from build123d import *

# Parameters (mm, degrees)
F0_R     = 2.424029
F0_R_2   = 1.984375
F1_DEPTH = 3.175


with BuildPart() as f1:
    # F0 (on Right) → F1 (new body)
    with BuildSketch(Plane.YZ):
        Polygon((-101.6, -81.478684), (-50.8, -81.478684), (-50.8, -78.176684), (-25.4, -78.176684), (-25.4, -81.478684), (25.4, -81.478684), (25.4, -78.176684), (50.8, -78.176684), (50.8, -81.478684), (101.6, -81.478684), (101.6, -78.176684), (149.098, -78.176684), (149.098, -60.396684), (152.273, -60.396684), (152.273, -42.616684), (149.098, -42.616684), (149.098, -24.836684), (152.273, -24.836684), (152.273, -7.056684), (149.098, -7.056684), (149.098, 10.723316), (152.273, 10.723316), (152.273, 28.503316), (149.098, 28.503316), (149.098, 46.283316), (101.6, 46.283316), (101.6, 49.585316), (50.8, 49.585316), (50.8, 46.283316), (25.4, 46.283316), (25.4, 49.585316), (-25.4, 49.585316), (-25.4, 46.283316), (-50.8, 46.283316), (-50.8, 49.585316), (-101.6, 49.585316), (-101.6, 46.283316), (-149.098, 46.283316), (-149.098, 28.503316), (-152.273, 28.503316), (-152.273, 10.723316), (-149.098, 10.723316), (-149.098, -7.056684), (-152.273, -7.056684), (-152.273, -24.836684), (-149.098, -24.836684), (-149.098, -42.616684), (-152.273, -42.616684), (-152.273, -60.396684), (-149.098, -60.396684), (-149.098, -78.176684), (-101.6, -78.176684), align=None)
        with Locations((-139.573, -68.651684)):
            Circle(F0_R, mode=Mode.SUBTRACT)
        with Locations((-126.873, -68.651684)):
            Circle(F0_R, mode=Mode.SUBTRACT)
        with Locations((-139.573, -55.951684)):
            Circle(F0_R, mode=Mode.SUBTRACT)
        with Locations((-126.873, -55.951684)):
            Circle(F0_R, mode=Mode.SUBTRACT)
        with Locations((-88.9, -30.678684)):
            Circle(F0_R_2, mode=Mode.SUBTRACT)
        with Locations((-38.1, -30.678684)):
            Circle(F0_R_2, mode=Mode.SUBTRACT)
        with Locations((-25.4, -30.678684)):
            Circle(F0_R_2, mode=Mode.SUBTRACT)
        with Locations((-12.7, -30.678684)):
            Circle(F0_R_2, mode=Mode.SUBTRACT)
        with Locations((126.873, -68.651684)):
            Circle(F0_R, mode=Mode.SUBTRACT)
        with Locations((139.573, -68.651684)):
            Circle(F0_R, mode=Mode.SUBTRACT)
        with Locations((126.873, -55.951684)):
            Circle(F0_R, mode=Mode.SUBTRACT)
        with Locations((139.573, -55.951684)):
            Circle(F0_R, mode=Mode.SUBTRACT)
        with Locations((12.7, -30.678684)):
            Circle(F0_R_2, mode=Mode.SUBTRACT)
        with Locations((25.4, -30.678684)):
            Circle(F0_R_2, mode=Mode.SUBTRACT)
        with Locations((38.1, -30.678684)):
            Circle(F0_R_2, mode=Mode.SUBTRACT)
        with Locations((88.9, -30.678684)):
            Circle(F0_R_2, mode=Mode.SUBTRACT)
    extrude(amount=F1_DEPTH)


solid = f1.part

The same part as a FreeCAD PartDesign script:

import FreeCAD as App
import Part
import Sketcher

V = App.Vector
Q = App.Units.Quantity

doc = App.newDocument("Part")
body = doc.addObject("PartDesign::Body", "Body")

# Sketch on YZ plane
sketch1 = body.newObject("Sketcher::SketchObject", "Sketch")
sketch1.AttachmentSupport = (doc.getObject("YZ_Plane"), [""])
sketch1.MapMode = "FlatFace"
sketch1.addGeometry([
    Part.LineSegment(V(-101.6, -81.5, 0), V(-50.8, -81.5, 0)),  # 0
    Part.LineSegment(V(-50.8, -81.5, 0), V(-50.8, -78.2, 0)),  # 1
    Part.LineSegment(V(-50.8, -78.2, 0), V(-25.4, -78.2, 0)),  # 2
    Part.LineSegment(V(-25.4, -78.2, 0), V(-25.4, -81.5, 0)),  # 3
    Part.LineSegment(V(-25.4, -81.5, 0), V(25.4, -81.5, 0)),  # 4
    Part.LineSegment(V(25.4, -81.5, 0), V(25.4, -78.2, 0)),  # 5
    Part.LineSegment(V(25.4, -78.2, 0), V(50.8, -78.2, 0)),  # 6
    Part.LineSegment(V(50.8, -78.2, 0), V(50.8, -81.5, 0)),  # 7
    Part.LineSegment(V(50.8, -81.5, 0), V(101.6, -81.5, 0)),  # 8
    Part.LineSegment(V(101.6, -81.5, 0), V(101.6, -78.2, 0)),  # 9
    Part.LineSegment(V(101.6, -78.2, 0), V(149.1, -78.2, 0)),  # 10
    Part.LineSegment(V(149.1, -78.2, 0), V(149.1, -60.4, 0)),  # 11
    Part.LineSegment(V(149.1, -60.4, 0), V(152.3, -60.4, 0)),  # 12
    Part.LineSegment(V(152.3, -60.4, 0), V(152.3, -42.6, 0)),  # 13
    Part.LineSegment(V(152.3, -42.6, 0), V(149.1, -42.6, 0)),  # 14
    Part.LineSegment(V(149.1, -42.6, 0), V(149.1, -24.8, 0)),  # 15
    Part.LineSegment(V(149.1, -24.8, 0), V(152.3, -24.8, 0)),  # 16
    Part.LineSegment(V(152.3, -24.8, 0), V(152.3, -7.1, 0)),  # 17
    Part.LineSegment(V(152.3, -7.1, 0), V(149.1, -7.1, 0)),  # 18
    Part.LineSegment(V(149.1, -7.1, 0), V(149.1, 10.7, 0)),  # 19
    Part.LineSegment(V(149.1, 10.7, 0), V(152.3, 10.7, 0)),  # 20
    Part.LineSegment(V(152.3, 10.7, 0), V(152.3, 28.5, 0)),  # 21
    Part.LineSegment(V(152.3, 28.5, 0), V(149.1, 28.5, 0)),  # 22
    Part.LineSegment(V(149.1, 28.5, 0), V(149.1, 46.3, 0)),  # 23
    Part.LineSegment(V(149.1, 46.3, 0), V(101.6, 46.3, 0)),  # 24
    Part.LineSegment(V(101.6, 46.3, 0), V(101.6, 49.6, 0)),  # 25
    Part.LineSegment(V(101.6, 49.6, 0), V(50.8, 49.6, 0)),  # 26
    Part.LineSegment(V(50.8, 49.6, 0), V(50.8, 46.3, 0)),  # 27
    Part.LineSegment(V(50.8, 46.3, 0), V(25.4, 46.3, 0)),  # 28
    Part.LineSegment(V(25.4, 46.3, 0), V(25.4, 49.6, 0)),  # 29
    Part.LineSegment(V(25.4, 49.6, 0), V(-25.4, 49.6, 0)),  # 30
    Part.LineSegment(V(-25.4, 49.6, 0), V(-25.4, 46.3, 0)),  # 31
    Part.LineSegment(V(-25.4, 46.3, 0), V(-50.8, 46.3, 0)),  # 32
    Part.LineSegment(V(-50.8, 46.3, 0), V(-50.8, 49.6, 0)),  # 33
    Part.LineSegment(V(-50.8, 49.6, 0), V(-101.6, 49.6, 0)),  # 34
    Part.LineSegment(V(-101.6, 49.6, 0), V(-101.6, 46.3, 0)),  # 35
    Part.LineSegment(V(-101.6, 46.3, 0), V(-149.1, 46.3, 0)),  # 36
    Part.LineSegment(V(-149.1, 46.3, 0), V(-149.1, 28.5, 0)),  # 37
    Part.LineSegment(V(-149.1, 28.5, 0), V(-152.3, 28.5, 0)),  # 38
    Part.LineSegment(V(-152.3, 28.5, 0), V(-152.3, 10.7, 0)),  # 39
    Part.LineSegment(V(-152.3, 10.7, 0), V(-149.1, 10.7, 0)),  # 40
    Part.LineSegment(V(-149.1, 10.7, 0), V(-149.1, -7.1, 0)),  # 41
    Part.LineSegment(V(-149.1, -7.1, 0), V(-152.3, -7.1, 0)),  # 42
    Part.LineSegment(V(-152.3, -7.1, 0), V(-152.3, -24.8, 0)),  # 43
    Part.LineSegment(V(-152.3, -24.8, 0), V(-149.1, -24.8, 0)),  # 44
    Part.LineSegment(V(-149.1, -24.8, 0), V(-149.1, -42.6, 0)),  # 45
    Part.LineSegment(V(-149.1, -42.6, 0), V(-152.3, -42.6, 0)),  # 46
    Part.LineSegment(V(-152.3, -42.6, 0), V(-152.3, -60.4, 0)),  # 47
    Part.LineSegment(V(-152.3, -60.4, 0), V(-149.1, -60.4, 0)),  # 48
    Part.LineSegment(V(-149.1, -60.4, 0), V(-149.1, -78.2, 0)),  # 49
    Part.LineSegment(V(-149.1, -78.2, 0), V(-101.6, -78.2, 0)),  # 50
    Part.LineSegment(V(-101.6, -78.2, 0), V(-101.6, -81.5, 0)),  # 51
    Part.Circle(V(-139.6, -68.7, 0), V(0, 0, 1), 2.4),  # 52
    Part.Circle(V(-126.9, -68.7, 0), V(0, 0, 1), 2.4),  # 53
    Part.Circle(V(-139.6, -56, 0), V(0, 0, 1), 2.4),  # 54
    Part.Circle(V(-126.9, -56, 0), V(0, 0, 1), 2.4),  # 55
    Part.Circle(V(126.9, -68.7, 0), V(0, 0, 1), 2.4),  # 56
    Part.Circle(V(139.6, -68.7, 0), V(0, 0, 1), 2.4),  # 57
    Part.Circle(V(126.9, -56, 0), V(0, 0, 1), 2.4),  # 58
    Part.Circle(V(139.6, -56, 0), V(0, 0, 1), 2.4),  # 59
    Part.Circle(V(-88.9, -30.7, 0), V(0, 0, 1), 2),  # 60
    Part.Circle(V(-38.1, -30.7, 0), V(0, 0, 1), 2),  # 61
    Part.Circle(V(-25.4, -30.7, 0), V(0, 0, 1), 2),  # 62
    Part.Circle(V(-12.7, -30.7, 0), V(0, 0, 1), 2),  # 63
    Part.Circle(V(12.7, -30.7, 0), V(0, 0, 1), 2),  # 64
    Part.Circle(V(25.4, -30.7, 0), V(0, 0, 1), 2),  # 65
    Part.Circle(V(38.1, -30.7, 0), V(0, 0, 1), 2),  # 66
    Part.Circle(V(88.9, -30.7, 0), V(0, 0, 1), 2),  # 67
], False)
sketch1.addConstraint([
    Sketcher.Constraint("Coincident", 0, 2, 1, 1),
    Sketcher.Constraint("Coincident", 1, 2, 2, 1),
    Sketcher.Constraint("Coincident", 2, 2, 3, 1),
    Sketcher.Constraint("Coincident", 3, 2, 4, 1),
    Sketcher.Constraint("Coincident", 4, 2, 5, 1),
    Sketcher.Constraint("Coincident", 5, 2, 6, 1),
    Sketcher.Constraint("Coincident", 6, 2, 7, 1),
    Sketcher.Constraint("Coincident", 7, 2, 8, 1),
    Sketcher.Constraint("Coincident", 8, 2, 9, 1),
    Sketcher.Constraint("Coincident", 9, 2, 10, 1),
    Sketcher.Constraint("Coincident", 10, 2, 11, 1),
    Sketcher.Constraint("Coincident", 11, 2, 12, 1),
    Sketcher.Constraint("Coincident", 12, 2, 13, 1),
    Sketcher.Constraint("Coincident", 13, 2, 14, 1),
    Sketcher.Constraint("Coincident", 14, 2, 15, 1),
    Sketcher.Constraint("Coincident", 15, 2, 16, 1),
    Sketcher.Constraint("Coincident", 16, 2, 17, 1),
    Sketcher.Constraint("Coincident", 17, 2, 18, 1),
    Sketcher.Constraint("Coincident", 18, 2, 19, 1),
    Sketcher.Constraint("Coincident", 19, 2, 20, 1),
    Sketcher.Constraint("Coincident", 20, 2, 21, 1),
    Sketcher.Constraint("Coincident", 21, 2, 22, 1),
    Sketcher.Constraint("Coincident", 22, 2, 23, 1),
    Sketcher.Constraint("Coincident", 23, 2, 24, 1),
    Sketcher.Constraint("Coincident", 24, 2, 25, 1),
    Sketcher.Constraint("Coincident", 25, 2, 26, 1),
    Sketcher.Constraint("Coincident", 26, 2, 27, 1),
    Sketcher.Constraint("Coincident", 27, 2, 28, 1),
    Sketcher.Constraint("Coincident", 28, 2, 29, 1),
    Sketcher.Constraint("Coincident", 29, 2, 30, 1),
    Sketcher.Constraint("Coincident", 30, 2, 31, 1),
    Sketcher.Constraint("Coincident", 31, 2, 32, 1),
    Sketcher.Constraint("Coincident", 32, 2, 33, 1),
    Sketcher.Constraint("Coincident", 33, 2, 34, 1),
    Sketcher.Constraint("Coincident", 34, 2, 35, 1),
    Sketcher.Constraint("Coincident", 35, 2, 36, 1),
    Sketcher.Constraint("Coincident", 36, 2, 37, 1),
    Sketcher.Constraint("Coincident", 37, 2, 38, 1),
    Sketcher.Constraint("Coincident", 38, 2, 39, 1),
    Sketcher.Constraint("Coincident", 39, 2, 40, 1),
    Sketcher.Constraint("Coincident", 40, 2, 41, 1),
    Sketcher.Constraint("Coincident", 41, 2, 42, 1),
    Sketcher.Constraint("Coincident", 42, 2, 43, 1),
    Sketcher.Constraint("Coincident", 43, 2, 44, 1),
    Sketcher.Constraint("Coincident", 44, 2, 45, 1),
    Sketcher.Constraint("Coincident", 45, 2, 46, 1),
    Sketcher.Constraint("Coincident", 46, 2, 47, 1),
    Sketcher.Constraint("Coincident", 47, 2, 48, 1),
    Sketcher.Constraint("Coincident", 48, 2, 49, 1),
    Sketcher.Constraint("Coincident", 49, 2, 50, 1),
    Sketcher.Constraint("Coincident", 50, 2, 51, 1),
    Sketcher.Constraint("Coincident", 51, 2, 0, 1),
    Sketcher.Constraint("Horizontal", 0),
    Sketcher.Constraint("Vertical", 1),
    Sketcher.Constraint("Horizontal", 2),
    Sketcher.Constraint("Vertical", 3),
    Sketcher.Constraint("Horizontal", 4),
    Sketcher.Constraint("Vertical", 5),
    Sketcher.Constraint("Horizontal", 6),
    Sketcher.Constraint("Vertical", 7),
    Sketcher.Constraint("Horizontal", 8),
    Sketcher.Constraint("Vertical", 9),
    Sketcher.Constraint("Horizontal", 10),
    Sketcher.Constraint("Vertical", 11),
    Sketcher.Constraint("Horizontal", 12),
    Sketcher.Constraint("Vertical", 13),
    Sketcher.Constraint("Horizontal", 14),
    Sketcher.Constraint("Vertical", 15),
    Sketcher.Constraint("Horizontal", 16),
    Sketcher.Constraint("Vertical", 17),
    Sketcher.Constraint("Horizontal", 18),
    Sketcher.Constraint("Vertical", 19),
    Sketcher.Constraint("Horizontal", 20),
    Sketcher.Constraint("Vertical", 21),
    Sketcher.Constraint("Horizontal", 22),
    Sketcher.Constraint("Vertical", 23),
    Sketcher.Constraint("Horizontal", 24),
    Sketcher.Constraint("Vertical", 25),
    Sketcher.Constraint("Horizontal", 26),
    Sketcher.Constraint("Vertical", 27),
    Sketcher.Constraint("Horizontal", 28),
    Sketcher.Constraint("Vertical", 29),
    Sketcher.Constraint("Horizontal", 30),
    Sketcher.Constraint("Vertical", 31),
    Sketcher.Constraint("Horizontal", 32),
    Sketcher.Constraint("Vertical", 33),
    Sketcher.Constraint("Horizontal", 34),
    Sketcher.Constraint("Vertical", 35),
    Sketcher.Constraint("Horizontal", 36),
    Sketcher.Constraint("Vertical", 37),
    Sketcher.Constraint("Horizontal", 38),
    Sketcher.Constraint("Vertical", 39),
    Sketcher.Constraint("Horizontal", 40),
    Sketcher.Constraint("Vertical", 41),
    Sketcher.Constraint("Horizontal", 42),
    Sketcher.Constraint("Vertical", 43),
    Sketcher.Constraint("Horizontal", 44),
    Sketcher.Constraint("Vertical", 45),
    Sketcher.Constraint("Horizontal", 46),
    Sketcher.Constraint("Vertical", 47),
    Sketcher.Constraint("Horizontal", 48),
    Sketcher.Constraint("Vertical", 49),
    Sketcher.Constraint("Horizontal", 50),
    Sketcher.Constraint("Vertical", 51),
    Sketcher.Constraint("Equal", 52, 53),
    Sketcher.Constraint("Equal", 53, 54),
    Sketcher.Constraint("Equal", 54, 55),
    Sketcher.Constraint("Equal", 55, 56),
    Sketcher.Constraint("Equal", 56, 57),
    Sketcher.Constraint("Equal", 57, 58),
    Sketcher.Constraint("Equal", 58, 59),
    Sketcher.Constraint("Equal", 60, 61),
    Sketcher.Constraint("Equal", 61, 62),
    Sketcher.Constraint("Equal", 62, 63),
    Sketcher.Constraint("Equal", 63, 64),
    Sketcher.Constraint("Equal", 64, 65),
    Sketcher.Constraint("Equal", 65, 66),
    Sketcher.Constraint("Equal", 66, 67),
    Sketcher.Constraint("Symmetric", 53, 3, 56, 3, -2),
    Sketcher.Constraint("Symmetric", 52, 3, 57, 3, -2),
    Sketcher.Constraint("Symmetric", 55, 3, 58, 3, -2),
    Sketcher.Constraint("Symmetric", 54, 3, 59, 3, -2),
    Sketcher.Constraint("Symmetric", 63, 3, 64, 3, -2),
    Sketcher.Constraint("Symmetric", 62, 3, 65, 3, -2),
    Sketcher.Constraint("Symmetric", 61, 3, 66, 3, -2),
    Sketcher.Constraint("Symmetric", 60, 3, 67, 3, -2),
    Sketcher.Constraint("Symmetric", 2, 2, 5, 2, -2),
    Sketcher.Constraint("Symmetric", 0, 2, 7, 2, -2),
    Sketcher.Constraint("Symmetric", 28, 2, 31, 2, -2),
    Sketcher.Constraint("Symmetric", 26, 2, 33, 2, -2),
    Sketcher.Constraint("Symmetric", 24, 2, 35, 2, -2),
    Sketcher.Constraint("Symmetric", 22, 2, 37, 2, -2),
    Sketcher.Constraint("Symmetric", 20, 2, 39, 2, -2),
    Sketcher.Constraint("Symmetric", 18, 2, 41, 2, -2),
    Sketcher.Constraint("Symmetric", 16, 2, 43, 2, -2),
    Sketcher.Constraint("Symmetric", 14, 2, 45, 2, -2),
    Sketcher.Constraint("Symmetric", 12, 2, 47, 2, -2),
    Sketcher.Constraint("Symmetric", 10, 2, 49, 2, -2),
    Sketcher.Constraint("Horizontal", 52, 3, 53, 3),
    Sketcher.Constraint("Horizontal", 54, 3, 55, 3),
    Sketcher.Constraint("Horizontal", 60, 3, 61, 3),
    Sketcher.Constraint("Horizontal", 61, 3, 62, 3),
    Sketcher.Constraint("Horizontal", 62, 3, 63, 3),
    Sketcher.Constraint("Horizontal", 0, 2, 3, 2),
    Sketcher.Constraint("Horizontal", 6, 2, 9, 2),
    Sketcher.Constraint("Horizontal", 24, 2, 27, 2),
    Sketcher.Constraint("Horizontal", 26, 2, 29, 2),
    Sketcher.Constraint("Vertical", 52, 3, 54, 3),
    Sketcher.Constraint("Vertical", 53, 3, 55, 3),
    Sketcher.Constraint("Vertical", 62, 3, 2, 2),
    Sketcher.Constraint("Vertical", 11, 2, 14, 2),
    Sketcher.Constraint("Vertical", 13, 2, 16, 2),
    Sketcher.Constraint("Vertical", 15, 2, 18, 2),
    Sketcher.Constraint("Vertical", 17, 2, 20, 2),
    Sketcher.Constraint("Vertical", 19, 2, 22, 2),
    Sketcher.Constraint("Vertical", 9, 2, 24, 2),
    Sketcher.Constraint("Vertical", 7, 2, 26, 2),
    Sketcher.Constraint("Vertical", 5, 2, 28, 2),
    Sketcher.Constraint("Vertical", 35, 2, 50, 2),
    Sketcher.Constraint("Equal", 0, 4),
    Sketcher.Constraint("Equal", 11, 13),
    Sketcher.Constraint("Equal", 13, 15),
    Sketcher.Constraint("Equal", 15, 17),
    Sketcher.Constraint("Equal", 17, 19),
    Sketcher.Constraint("Equal", 19, 21),
    Sketcher.Constraint("Equal", 21, 23),
    Sketcher.Constraint("Equal", 9, 25),
    Sketcher.Constraint("DistanceX", 0, 1, 0, 2, Q("2 in")),
    Sketcher.Constraint("DistanceX", 2, 1, 2, 2, Q("1 in")),
    Sketcher.Constraint("Diameter", 60, Q("0.15625 in")),
    Sketcher.Constraint("DistanceY", 11, 1, 11, 2, Q("0.7 in")),
    Sketcher.Constraint("DistanceX", 10, 1, 10, 2, Q("1.87 in")),
    Sketcher.Constraint("DistanceY", 1, 1, 1, 2, Q("0.13 in")),
    Sketcher.Constraint("DistanceX", 60, 3, -1, 1, Q("3.5 in")),
    Sketcher.Constraint("DistanceX", 61, 3, -1, 1, Q("1.5 in")),
    Sketcher.Constraint("DistanceX", 63, 3, -1, 1, Q("0.5 in")),
    Sketcher.Constraint("DistanceX", 12, 1, 12, 2, Q("0.125 in")),
    Sketcher.Constraint("DistanceX", 52, 3, -1, 1, Q("5.495 in")),
    Sketcher.Constraint("DistanceX", 53, 3, -1, 1, Q("4.995 in")),
    Sketcher.Constraint("Diameter", 52, 4.848058),
    Sketcher.Constraint("DistanceY", 52, 3, -1, 1, 68.651684),
    Sketcher.Constraint("DistanceY", 54, 3, -1, 1, 55.951684),
    Sketcher.Constraint("DistanceY", 60, 3, -1, 1, 30.678684),
    Sketcher.Constraint("DistanceY", 0, 2, -1, 1, 81.478684),
])
pad1 = body.newObject("PartDesign::Pad", "Pad")
pad1.Profile = sketch1
pad1.Length = Q("0.125 in")

doc.recompute()
